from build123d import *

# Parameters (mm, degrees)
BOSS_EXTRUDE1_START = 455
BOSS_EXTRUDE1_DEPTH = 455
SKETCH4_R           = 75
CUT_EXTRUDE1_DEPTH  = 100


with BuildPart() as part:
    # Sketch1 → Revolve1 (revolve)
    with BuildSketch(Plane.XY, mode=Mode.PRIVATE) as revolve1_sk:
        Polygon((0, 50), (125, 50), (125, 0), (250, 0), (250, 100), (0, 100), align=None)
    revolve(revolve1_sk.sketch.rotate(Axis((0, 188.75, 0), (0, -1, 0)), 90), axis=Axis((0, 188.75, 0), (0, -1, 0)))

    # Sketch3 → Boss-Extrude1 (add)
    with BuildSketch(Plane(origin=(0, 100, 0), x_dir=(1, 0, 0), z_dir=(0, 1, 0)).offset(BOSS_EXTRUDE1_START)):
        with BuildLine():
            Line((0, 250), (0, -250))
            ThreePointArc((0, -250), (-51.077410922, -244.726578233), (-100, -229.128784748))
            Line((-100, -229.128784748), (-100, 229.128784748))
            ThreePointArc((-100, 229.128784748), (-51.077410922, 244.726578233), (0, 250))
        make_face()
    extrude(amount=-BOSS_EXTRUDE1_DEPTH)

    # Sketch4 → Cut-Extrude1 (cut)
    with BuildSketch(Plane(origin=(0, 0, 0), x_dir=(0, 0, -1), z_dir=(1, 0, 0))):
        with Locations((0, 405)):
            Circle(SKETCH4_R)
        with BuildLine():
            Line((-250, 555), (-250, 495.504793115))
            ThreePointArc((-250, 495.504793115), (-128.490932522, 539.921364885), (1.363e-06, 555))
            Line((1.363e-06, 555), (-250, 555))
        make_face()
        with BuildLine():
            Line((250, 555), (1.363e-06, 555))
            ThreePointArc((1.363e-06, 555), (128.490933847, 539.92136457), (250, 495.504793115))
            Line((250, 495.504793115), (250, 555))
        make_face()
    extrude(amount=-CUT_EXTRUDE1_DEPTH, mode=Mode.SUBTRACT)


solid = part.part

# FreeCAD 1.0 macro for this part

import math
import FreeCAD as App
import Part
import Sketcher
from FreeCAD import Vector
Q = App.Units.Quantity

doc = App.newDocument("Part")
body = doc.addObject("PartDesign::Body", "Body")

sketch1 = body.newObject("Sketcher::SketchObject", "Sketch")
sketch1.AttachmentSupport = (doc.getObject("XY_Plane"), [""])
sketch1.MapMode = "FlatFace"
sketch1.addGeometry(Part.LineSegment(Vector(0, 50, 0), Vector(125, 50, 0)), False)
sketch1.addGeometry(Part.LineSegment(Vector(125, 50, 0), Vector(125, 0, 0)), False)
sketch1.addGeometry(Part.LineSegment(Vector(125, 0, 0), Vector(250, 0, 0)), False)
sketch1.addGeometry(Part.LineSegment(Vector(250, 0, 0), Vector(250, 100, 0)), False)
sketch1.addGeometry(Part.LineSegment(Vector(250, 100, 0), Vector(0, 100, 0)), False)
sketch1.addGeometry(Part.LineSegment(Vector(0, 100, 0), Vector(0, 50, 0)), False)
sketch1.addConstraint(Sketcher.Constraint("Coincident", 0, 2, 1, 1))
sketch1.addConstraint(Sketcher.Constraint("Coincident", 1, 2, 2, 1))
sketch1.addConstraint(Sketcher.Constraint("Coincident", 2, 2, 3, 1))
sketch1.addConstraint(Sketcher.Constraint("Coincident", 3, 2, 4, 1))
sketch1.addConstraint(Sketcher.Constraint("Coincident", 4, 2, 5, 1))
sketch1.addConstraint(Sketcher.Constraint("Coincident", 5, 2, 0, 1))
sketch1.addConstraint(Sketcher.Constraint("Horizontal", 0))
sketch1.addConstraint(Sketcher.Constraint("Vertical", 1))
sketch1.addConstraint(Sketcher.Constraint("Horizontal", 2))
sketch1.addConstraint(Sketcher.Constraint("Vertical", 3))
sketch1.addConstraint(Sketcher.Constraint("Horizontal", 4))
sketch1.addConstraint(Sketcher.Constraint("Vertical", 5))
sketch1.addConstraint(Sketcher.Constraint("PointOnObject", 1, 2, -1))
sketch1.addConstraint(Sketcher.Constraint("PointOnObject", 4, 2, -2))
sketch1.addConstraint(Sketcher.Constraint("Equal", 0, 2))
sketch1.addConstraint(Sketcher.Constraint("Equal", 1, 5))
sketch1.addConstraint(Sketcher.Constraint("DistanceX", 0, 1, 0, 2, Q("125 mm")))
sketch1.addConstraint(Sketcher.Constraint("DistanceY", 1, 2, 1, 1, Q("50 mm")))
revolution = body.newObject("PartDesign::Revolution", "Revolution")
revolution.Profile = sketch1
revolution.ReferenceAxis = (sketch1, ["V_Axis"])
revolution.Angle = 360

sketch2 = body.newObject("Sketcher::SketchObject", "Sketch001")
sketch2.AttachmentSupport = (doc.getObject("XZ_Plane"), [""])
sketch2.MapMode = "FlatFace"
sketch2.AttachmentOffset = App.Placement(Vector(0, 0, -555), App.Rotation())
sketch2.addGeometry(Part.LineSegment(Vector(0, 250, 0), Vector(0, -250, 0)), False)
sketch2.addGeometry(Part.ArcOfCircle(Part.Circle(Vector(0, 0, 0), Vector(0, 0, 1), 250), math.radians(-114), math.radians(-90)), False)
sketch2.addGeometry(Part.LineSegment(Vector(-100, -229, 0), Vector(-100, 229, 0)), False)
sketch2.addGeometry(Part.ArcOfCircle(Part.Circle(Vector(0, 0, 0), Vector(0, 0, 1), 250), math.radians(90), math.radians(114)), False)
sketch2.addConstraint(Sketcher.Constraint("Coincident", 0, 2, 1, 2))
sketch2.addConstraint(Sketcher.Constraint("Coincident", 1, 1, 2, 1))
sketch2.addConstraint(Sketcher.Constraint("Coincident", 2, 2, 3, 2))
sketch2.addConstraint(Sketcher.Constraint("Coincident", 3, 1, 0, 1))
sketch2.addConstraint(Sketcher.Constraint("Vertical", 0))
sketch2.addConstraint(Sketcher.Constraint("Vertical", 2))
sketch2.addConstraint(Sketcher.Constraint("Coincident", 1, 3, -1, 1))
sketch2.addConstraint(Sketcher.Constraint("Coincident", 3, 3, -1, 1))
sketch2.addConstraint(Sketcher.Constraint("Equal", 1, 3))
sketch2.addConstraint(Sketcher.Constraint("PointOnObject", 0, 2, -2))
sketch2.addConstraint(Sketcher.Constraint("Radius", 1, Q("250 mm")))
sketch2.addConstraint(Sketcher.Constraint("DistanceX", 1, 1, -1, 1, Q("100 mm")))
pad1 = body.newObject("PartDesign::Pad", "Pad")
pad1.Profile = sketch2
pad1.Length = 455

sketch3 = body.newObject("Sketcher::SketchObject", "Sketch002")
sketch3.AttachmentSupport = (doc.getObject("YZ_Plane"), [""])
sketch3.MapMode = "FlatFace"
sketch3.addGeometry(Part.Circle(Vector(405, 0, 0), Vector(0, 0, 1), 75), False)
sketch3.addGeometry(Part.LineSegment(Vector(555, 250, 0), Vector(496, 250, 0)), False)
sketch3.addGeometry(Part.ArcOfCircle(Part.Circle(Vector(0, 0, 0), Vector(0, 0, 1), 555), math.radians(0), math.radians(27)), False)
sketch3.addGeometry(Part.LineSegment(Vector(555, 0, 0), Vector(555, 250, 0)), False)
sketch3.addGeometry(Part.LineSegment(Vector(555, -250, 0), Vector(555, 0, 0)), False)
sketch3.addGeometry(Part.ArcOfCircle(Part.Circle(Vector(0, 0, 0), Vector(0, 0, 1), 555), math.radians(-27), math.radians(0)), False)
sketch3.addGeometry(Part.LineSegment(Vector(496, -250, 0), Vector(555, -250, 0)), False)
sketch3.addConstraint(Sketcher.Constraint("Coincident", 1, 2, 2, 2))
sketch3.addConstraint(Sketcher.Constraint("Tangent", 2, 1, 3, 1))
sketch3.addConstraint(Sketcher.Constraint("Coincident", 3, 2, 1, 1))
sketch3.addConstraint(Sketcher.Constraint("Tangent", 4, 2, 5, 2))
sketch3.addConstraint(Sketcher.Constraint("Coincident", 5, 1, 6, 1))
sketch3.addConstraint(Sketcher.Constraint("Coincident", 6, 2, 4, 1))
sketch3.addConstraint(Sketcher.Constraint("Horizontal", 1))
sketch3.addConstraint(Sketcher.Constraint("Vertical", 3))
sketch3.addConstraint(Sketcher.Constraint("Vertical", 4))
sketch3.addConstraint(Sketcher.Constraint("Horizontal", 6))
sketch3.addConstraint(Sketcher.Constraint("Coincident", 2, 3, -1, 1))
sketch3.addConstraint(Sketcher.Constraint("Coincident", 5, 3, -1, 1))
sketch3.addConstraint(Sketcher.Constraint("Equal", 2, 5))
sketch3.addConstraint(Sketcher.Constraint("PointOnObject", 0, 3, -1))
sketch3.addConstraint(Sketcher.Constraint("Equal", 1, 6))
sketch3.addConstraint(Sketcher.Constraint("Diameter", 0, Q("150 mm")))
sketch3.addConstraint(Sketcher.Constraint("Radius", 2, Q("555 mm")))
sketch3.addConstraint(Sketcher.Constraint("DistanceY", 3, 1, 3, 2, Q("250.000001 mm")))
sketch3.addConstraint(Sketcher.Constraint("DistanceX", -1, 1, 0, 3, Q("405 mm")))
pocket1 = body.newObject("PartDesign::Pocket", "Pocket")
pocket1.Profile = sketch3
pocket1.Length = 100

doc.recompute()
